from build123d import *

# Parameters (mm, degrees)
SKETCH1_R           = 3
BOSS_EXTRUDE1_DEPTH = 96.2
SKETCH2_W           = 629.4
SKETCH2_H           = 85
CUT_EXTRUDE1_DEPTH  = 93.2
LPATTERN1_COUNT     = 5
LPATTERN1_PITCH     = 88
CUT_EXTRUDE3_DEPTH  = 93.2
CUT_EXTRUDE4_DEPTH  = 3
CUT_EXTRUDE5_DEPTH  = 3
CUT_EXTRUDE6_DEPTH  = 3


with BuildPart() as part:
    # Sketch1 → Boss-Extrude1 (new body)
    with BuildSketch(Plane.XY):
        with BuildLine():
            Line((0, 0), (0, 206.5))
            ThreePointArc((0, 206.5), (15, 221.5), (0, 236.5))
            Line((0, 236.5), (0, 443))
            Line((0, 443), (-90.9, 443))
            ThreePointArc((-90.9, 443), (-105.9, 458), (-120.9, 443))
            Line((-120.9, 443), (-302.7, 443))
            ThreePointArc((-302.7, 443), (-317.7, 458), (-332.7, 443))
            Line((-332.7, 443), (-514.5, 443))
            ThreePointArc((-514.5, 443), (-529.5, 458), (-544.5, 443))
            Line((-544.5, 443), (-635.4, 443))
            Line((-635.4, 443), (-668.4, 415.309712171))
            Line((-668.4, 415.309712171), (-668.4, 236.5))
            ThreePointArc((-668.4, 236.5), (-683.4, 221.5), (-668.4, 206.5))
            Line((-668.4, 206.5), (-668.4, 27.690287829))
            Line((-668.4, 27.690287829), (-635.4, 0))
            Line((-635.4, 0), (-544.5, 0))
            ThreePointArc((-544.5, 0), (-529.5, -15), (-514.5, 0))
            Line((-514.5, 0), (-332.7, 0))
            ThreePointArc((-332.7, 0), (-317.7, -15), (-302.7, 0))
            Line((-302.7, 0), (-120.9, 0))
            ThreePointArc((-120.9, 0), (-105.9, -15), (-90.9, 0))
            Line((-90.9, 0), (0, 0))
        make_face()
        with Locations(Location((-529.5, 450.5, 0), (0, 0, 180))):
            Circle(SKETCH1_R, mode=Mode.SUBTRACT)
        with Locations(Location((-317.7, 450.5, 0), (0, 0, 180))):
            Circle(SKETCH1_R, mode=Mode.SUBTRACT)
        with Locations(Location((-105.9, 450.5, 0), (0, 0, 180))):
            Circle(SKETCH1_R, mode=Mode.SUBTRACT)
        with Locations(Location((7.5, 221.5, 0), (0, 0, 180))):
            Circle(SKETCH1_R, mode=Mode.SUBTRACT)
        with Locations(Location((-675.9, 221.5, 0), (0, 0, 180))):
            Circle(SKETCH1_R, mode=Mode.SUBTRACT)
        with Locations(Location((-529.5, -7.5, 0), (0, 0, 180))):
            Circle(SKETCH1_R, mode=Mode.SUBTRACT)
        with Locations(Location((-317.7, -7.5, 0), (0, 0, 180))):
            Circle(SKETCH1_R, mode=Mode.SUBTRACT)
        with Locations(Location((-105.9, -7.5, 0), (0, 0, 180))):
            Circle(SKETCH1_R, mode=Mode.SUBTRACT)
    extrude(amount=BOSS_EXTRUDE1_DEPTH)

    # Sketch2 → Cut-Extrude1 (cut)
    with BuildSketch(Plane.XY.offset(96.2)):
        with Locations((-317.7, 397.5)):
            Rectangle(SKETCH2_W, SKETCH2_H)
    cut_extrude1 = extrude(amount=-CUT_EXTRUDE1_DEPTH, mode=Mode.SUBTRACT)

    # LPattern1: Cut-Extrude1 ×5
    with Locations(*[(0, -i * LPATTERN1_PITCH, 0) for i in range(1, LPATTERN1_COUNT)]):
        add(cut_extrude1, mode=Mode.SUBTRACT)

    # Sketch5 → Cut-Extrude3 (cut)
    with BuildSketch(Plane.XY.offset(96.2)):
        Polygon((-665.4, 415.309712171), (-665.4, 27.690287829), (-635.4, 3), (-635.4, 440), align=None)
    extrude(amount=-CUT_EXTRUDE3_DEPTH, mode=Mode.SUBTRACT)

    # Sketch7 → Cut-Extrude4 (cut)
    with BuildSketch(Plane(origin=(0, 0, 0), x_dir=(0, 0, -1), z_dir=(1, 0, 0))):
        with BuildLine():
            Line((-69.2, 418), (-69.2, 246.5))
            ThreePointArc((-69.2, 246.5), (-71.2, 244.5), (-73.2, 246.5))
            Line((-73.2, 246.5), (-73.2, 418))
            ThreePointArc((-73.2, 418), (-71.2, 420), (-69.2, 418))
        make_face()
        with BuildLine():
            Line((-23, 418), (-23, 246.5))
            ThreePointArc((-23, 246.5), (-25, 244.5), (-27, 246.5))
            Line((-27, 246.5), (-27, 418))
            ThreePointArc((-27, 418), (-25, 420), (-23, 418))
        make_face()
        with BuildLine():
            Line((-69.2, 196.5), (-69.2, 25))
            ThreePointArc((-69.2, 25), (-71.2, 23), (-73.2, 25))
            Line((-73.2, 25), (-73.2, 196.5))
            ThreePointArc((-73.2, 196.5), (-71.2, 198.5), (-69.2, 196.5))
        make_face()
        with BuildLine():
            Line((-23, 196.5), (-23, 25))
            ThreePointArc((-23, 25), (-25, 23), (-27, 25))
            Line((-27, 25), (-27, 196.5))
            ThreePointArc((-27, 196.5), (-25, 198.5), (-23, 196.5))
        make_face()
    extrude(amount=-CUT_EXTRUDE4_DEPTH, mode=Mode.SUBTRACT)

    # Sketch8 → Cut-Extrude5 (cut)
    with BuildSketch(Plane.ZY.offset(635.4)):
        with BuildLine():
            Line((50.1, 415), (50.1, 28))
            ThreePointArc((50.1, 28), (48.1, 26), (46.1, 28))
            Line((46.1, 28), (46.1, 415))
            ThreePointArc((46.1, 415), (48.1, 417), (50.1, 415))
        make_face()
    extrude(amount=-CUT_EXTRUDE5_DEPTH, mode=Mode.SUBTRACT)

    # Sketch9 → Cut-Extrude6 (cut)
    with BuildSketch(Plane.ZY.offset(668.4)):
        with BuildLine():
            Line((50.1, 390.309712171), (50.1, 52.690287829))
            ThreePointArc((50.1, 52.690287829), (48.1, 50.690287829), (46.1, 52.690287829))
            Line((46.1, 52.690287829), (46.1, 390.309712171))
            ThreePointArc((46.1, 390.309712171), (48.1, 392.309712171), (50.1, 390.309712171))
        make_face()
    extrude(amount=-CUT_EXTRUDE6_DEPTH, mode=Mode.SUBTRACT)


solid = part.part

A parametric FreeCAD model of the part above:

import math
import FreeCAD as App
import Part
import Sketcher

V = App.Vector
Q = App.Units.Quantity


def add_polygon(sketch, points):
    """Adds a closed chain of lines whose ends are joined by coincident constraints."""
    first, n = sketch.GeometryCount, len(points)
    for a, b in zip(points, points[1:] + points[:1]):
        sketch.addGeometry(Part.LineSegment(App.Vector(*a, 0), App.Vector(*b, 0)), False)
    for i in range(n):
        sketch.addConstraint(Sketcher.Constraint("Coincident", first + i, 2, first + (i + 1) % n, 1))

doc = App.newDocument("Part")
body = doc.addObject("PartDesign::Body", "Body")

# Sketch on XY plane
sketch1 = body.newObject("Sketcher::SketchObject", "Sketch")
sketch1.AttachmentSupport = (doc.getObject("XY_Plane"), [""])
sketch1.MapMode = "FlatFace"
sketch1.addGeometry([
    Part.LineSegment(V(0, 0, 0), V(0, 206.5, 0)),  # 0
    Part.ArcOfCircle(Part.Circle(V(0, 221.5, 0), V(0, 0, 1), 15), math.radians(-90), math.radians(90)),  # 1
    Part.LineSegment(V(0, 236.5, 0), V(0, 443, 0)),  # 2
    Part.LineSegment(V(0, 443, 0), V(-90.9, 443, 0)),  # 3
    Part.ArcOfCircle(Part.Circle(V(-105.9, 443, 0), V(0, 0, 1), 15), math.radians(0), math.radians(180)),  # 4
    Part.LineSegment(V(-120.9, 443, 0), V(-302.7, 443, 0)),  # 5
    Part.ArcOfCircle(Part.Circle(V(-317.7, 443, 0), V(0, 0, 1), 15), math.radians(0), math.radians(180)),  # 6
    Part.LineSegment(V(-332.7, 443, 0), V(-514.5, 443, 0)),  # 7
    Part.ArcOfCircle(Part.Circle(V(-529.5, 443, 0), V(0, 0, 1), 15), math.radians(0), math.radians(180)),  # 8
    Part.LineSegment(V(-544.5, 443, 0), V(-635.4, 443, 0)),  # 9
    Part.LineSegment(V(-635.4, 443, 0), V(-668.4, 415.309712, 0)),  # 10
    Part.LineSegment(V(-668.4, 415.309712, 0), V(-668.4, 236.5, 0)),  # 11
    Part.ArcOfCircle(Part.Circle(V(-668.4, 221.5, 0), V(0, 0, 1), 15), math.radians(90), math.radians(270)),  # 12
    Part.LineSegment(V(-668.4, 206.5, 0), V(-668.4, 27.690288, 0)),  # 13
    Part.LineSegment(V(-668.4, 27.690288, 0), V(-635.4, 0, 0)),  # 14
    Part.LineSegment(V(-635.4, 0, 0), V(-544.5, 0, 0)),  # 15
    Part.ArcOfCircle(Part.Circle(V(-529.5, 0, 0), V(0, 0, 1), 15), math.radians(180), math.radians(360)),  # 16
    Part.LineSegment(V(-514.5, 0, 0), V(-332.7, 0, 0)),  # 17
    Part.ArcOfCircle(Part.Circle(V(-317.7, 0, 0), V(0, 0, 1), 15), math.radians(180), math.radians(360)),  # 18
    Part.LineSegment(V(-302.7, 0, 0), V(-120.9, 0, 0)),  # 19
    Part.ArcOfCircle(Part.Circle(V(-105.9, 0, 0), V(0, 0, 1), 15), math.radians(180), math.radians(360)),  # 20
    Part.LineSegment(V(-90.9, 0, 0), V(0, 0, 0)),  # 21
    Part.Circle(V(-529.5, -7.5, 0), V(0, 0, 1), 3),  # 22
    Part.Circle(V(-317.7, -7.5, 0), V(0, 0, 1), 3),  # 23
    Part.Circle(V(-105.9, -7.5, 0), V(0, 0, 1), 3),  # 24
    Part.Circle(V(-675.9, 221.5, 0), V(0, 0, 1), 3),  # 25
    Part.Circle(V(-529.5, 450.5, 0), V(0, 0, 1), 3),  # 26
    Part.Circle(V(7.5, 221.5, 0), V(0, 0, 1), 3),  # 27
    Part.Circle(V(-317.7, 450.5, 0), V(0, 0, 1), 3),  # 28
    Part.Circle(V(-105.9, 450.5, 0), V(0, 0, 1), 3),  # 29
], False)
sketch1.addConstraint([
    Sketcher.Constraint("Coincident", 0, 2, 1, 1),
    Sketcher.Constraint("Coincident", 1, 2, 2, 1),
    Sketcher.Constraint("Coincident", 2, 2, 3, 1),
    Sketcher.Constraint("Coincident", 3, 2, 4, 1),
    Sketcher.Constraint("Coincident", 4, 2, 5, 1),
    Sketcher.Constraint("Coincident", 5, 2, 6, 1),
    Sketcher.Constraint("Coincident", 6, 2, 7, 1),
    Sketcher.Constraint("Coincident", 7, 2, 8, 1),
    Sketcher.Constraint("Coincident", 8, 2, 9, 1),
    Sketcher.Constraint("Coincident", 9, 2, 10, 1),
    Sketcher.Constraint("Coincident", 10, 2, 11, 1),
    Sketcher.Constraint("Coincident", 11, 2, 12, 1),
    Sketcher.Constraint("Coincident", 12, 2, 13, 1),
    Sketcher.Constraint("Coincident", 13, 2, 14, 1),
    Sketcher.Constraint("Coincident", 14, 2, 15, 1),
    Sketcher.Constraint("Coincident", 15, 2, 16, 1),
    Sketcher.Constraint("Coincident", 16, 2, 17, 1),
    Sketcher.Constraint("Coincident", 17, 2, 18, 1),
    Sketcher.Constraint("Coincident", 18, 2, 19, 1),
    Sketcher.Constraint("Coincident", 19, 2, 20, 1),
    Sketcher.Constraint("Coincident", 20, 2, 21, 1),
    Sketcher.Constraint("Coincident", 21, 2, 0, 1),
    Sketcher.Constraint("Vertical", 0),
    Sketcher.Constraint("Vertical", 2),
    Sketcher.Constraint("Horizontal", 3),
    Sketcher.Constraint("Horizontal", 5),
    Sketcher.Constraint("Horizontal", 7),
    Sketcher.Constraint("Horizontal", 9),
    Sketcher.Constraint("Vertical", 11),
    Sketcher.Constraint("Vertical", 13),
    Sketcher.Constraint("Horizontal", 15),
    Sketcher.Constraint("Horizontal", 17),
    Sketcher.Constraint("Horizontal", 19),
    Sketcher.Constraint("Horizontal", 21),
    Sketcher.Constraint("Coincident", 21, 2, -1, 1),
    Sketcher.Constraint("Equal", 1, 4),
    Sketcher.Constraint("Equal", 4, 6),
    Sketcher.Constraint("Equal", 6, 8),
    Sketcher.Constraint("Equal", 8, 12),
    Sketcher.Constraint("Equal", 12, 16),
    Sketcher.Constraint("Equal", 16, 18),
    Sketcher.Constraint("Equal", 18, 20),
    Sketcher.Constraint("Equal", 22, 23),
    Sketcher.Constraint("Equal", 23, 24),
    Sketcher.Constraint("Equal", 24, 25),
    Sketcher.Constraint("Equal", 25, 26),
    Sketcher.Constraint("Equal", 26, 27),
    Sketcher.Constraint("Equal", 27, 28),
    Sketcher.Constraint("Equal", 28, 29),
    Sketcher.Constraint("PointOnObject", 1, 3, -2),
    Sketcher.Constraint("PointOnObject", 16, 3, -1),
    Sketcher.Constraint("PointOnObject", 18, 3, -1),
    Sketcher.Constraint("PointOnObject", 20, 3, -1),
    Sketcher.Constraint("PointOnObject", 1, 2, -2),
    Sketcher.Constraint("PointOnObject", 14, 2, -1),
    Sketcher.Constraint("PointOnObject", 16, 2, -1),
    Sketcher.Constraint("PointOnObject", 18, 2, -1),
    Sketcher.Constraint("Horizontal", 4, 3, 6, 3),
    Sketcher.Constraint("Horizontal", 6, 3, 8, 3),
    Sketcher.Constraint("Horizontal", 1, 3, 12, 3),
    Sketcher.Constraint("Horizontal", 22, 3, 23, 3),
    Sketcher.Constraint("Horizontal", 23, 3, 24, 3),
    Sketcher.Constraint("Horizontal", 12, 3, 25, 3),
    Sketcher.Constraint("Horizontal", 25, 3, 27, 3),
    Sketcher.Constraint("Horizontal", 26, 3, 28, 3),
    Sketcher.Constraint("Horizontal", 28, 3, 29, 3),
    Sketcher.Constraint("Horizontal", 8, 3, 2, 2),
    Sketcher.Constraint("Horizontal", 3, 2, 4, 2),
    Sketcher.Constraint("Horizontal", 5, 2, 6, 2),
    Sketcher.Constraint("Horizontal", 7, 2, 8, 2),
    Sketcher.Constraint("Vertical", 8, 3, 16, 3),
    Sketcher.Constraint("Vertical", 6, 3, 18, 3),
    Sketcher.Constraint("Vertical", 4, 3, 20, 3),
    Sketcher.Constraint("Vertical", 16, 3, 22, 3),
    Sketcher.Constraint("Vertical", 18, 3, 23, 3),
    Sketcher.Constraint("Vertical", 20, 3, 24, 3),
    Sketcher.Constraint("Vertical", 22, 3, 26, 3),
    Sketcher.Constraint("Vertical", 23, 3, 28, 3),
    Sketcher.Constraint("Vertical", 24, 3, 29, 3),
    Sketcher.Constraint("Vertical", 12, 3, 10, 2),
    Sketcher.Constraint("Vertical", 11, 2, 12, 2),
    Sketcher.Constraint("Vertical", 9, 2, 14, 2),
    Sketcher.Constraint("Equal", 5, 7),
    Sketcher.Constraint("Equal", 3, 9),
    Sketcher.Constraint("Equal", 0, 2),
    Sketcher.Constraint("Equal", 11, 13),
    Sketcher.Constraint("Diameter", 22, 6.0),
    Sketcher.Constraint("Radius", 1, 15.0),
    Sketcher.Constraint("Angle", 10, Q("-140 deg")),
    Sketcher.Constraint("DistanceX", 3, 2, 3, 1, 90.9),
    Sketcher.Constraint("DistanceX", 5, 2, 5, 1, 181.8),
    Sketcher.Constraint("DistanceY", 0, 1, 0, 2, 206.5),
    Sketcher.Constraint("DistanceY", 22, 3, 12, 3, 229.0),
    Sketcher.Constraint("DistanceY", 12, 3, 26, 3, 229.0),
    Sketcher.Constraint("DistanceX", 12, 3, 9, 2, 33.0),
    Sketcher.Constraint("DistanceX", 25, 3, -1, 1, 675.9),
    Sketcher.Constraint("DistanceX", -1, 1, 27, 3, 7.5),
])
pad1 = body.newObject("PartDesign::Pad", "Pad")
pad1.Profile = sketch1
pad1.Length = 96.2

# Sketch on XY plane
sketch2 = body.newObject("Sketcher::SketchObject", "Sketch001")
sketch2.AttachmentSupport = (doc.getObject("XY_Plane"), [""])
sketch2.MapMode = "FlatFace"
sketch2.AttachmentOffset = App.Placement(V(0, 0, 96.2), App.Rotation())
add_polygon(sketch2, [(-632.4, 440), (-632.4, 355), (-3, 355), (-3, 440)])  # lines 0-3
sketch2.addConstraint([
    Sketcher.Constraint("Vertical", 0),
    Sketcher.Constraint("Horizontal", 1),
    Sketcher.Constraint("Vertical", 2),
    Sketcher.Constraint("Horizontal", 3),
    Sketcher.Constraint("DistanceY", 0, 2, 0, 1, 85.0),
    Sketcher.Constraint("DistanceX", 1, 1, 1, 2, 629.4),
    Sketcher.Constraint("DistanceY", -1, 1, 0, 2, 355.0),
    Sketcher.Constraint("DistanceX", 1, 2, -1, 1, 3.0),
])
pocket1 = body.newObject("PartDesign::Pocket", "Pocket")
pocket1.Profile = sketch2
pocket1.Length = 93.2
doc.recompute()

linearpattern = body.newObject("PartDesign::LinearPattern", "LinearPattern")
linearpattern.Originals = [pocket1]
linearpattern.Direction = (doc.getObject("Y_Axis"), [""])
linearpattern.Mode = "offset"
linearpattern.Offset = 88
linearpattern.Occurrences = 5
linearpattern.Reversed = True
body.Tip = linearpattern

# Sketch on XY plane
sketch3 = body.newObject("Sketcher::SketchObject", "Sketch002")
sketch3.AttachmentSupport = (doc.getObject("XY_Plane"), [""])
sketch3.MapMode = "FlatFace"
sketch3.AttachmentOffset = App.Placement(V(0, 0, 96.2), App.Rotation())
add_polygon(sketch3, [(-665.4, 415.309712), (-665.4, 27.690288), (-635.4, 3), (-635.4, 440)])  # lines 0-3
sketch3.addConstraint([
    Sketcher.Constraint("Vertical", 0),
    Sketcher.Constraint("Vertical", 2),
    Sketcher.Constraint("Equal", 1, 3),
    Sketcher.Constraint("DistanceY", 2, 1, 2, 2, 437.0),
    Sketcher.Constraint("DistanceY", -1, 1, 1, 2, 3.0),
    Sketcher.Constraint("DistanceX", 0, 2, 1, 2, 30.0),
    Sketcher.Constraint("DistanceX", 0, 2, -1, 1, 665.4),
    Sketcher.Constraint("DistanceY", 0, 2, 0, 1, 387.619424),
])
pocket2 = body.newObject("PartDesign::Pocket", "Pocket001")
pocket2.Profile = sketch3
pocket2.Length = 93.2

# Sketch on YZ plane
sketch4 = body.newObject("Sketcher::SketchObject", "Sketch003")
sketch4.AttachmentSupport = (doc.getObject("YZ_Plane"), [""])
sketch4.MapMode = "FlatFace"
sketch4.addGeometry([
    Part.LineSegment(V(246.5, 69.2, 0), V(418, 69.2, 0)),  # 0
    Part.ArcOfCircle(Part.Circle(V(418, 71.2, 0), V(0, 0, 1), 2), math.radians(-90), math.radians(90)),  # 1
    Part.LineSegment(V(418, 73.2, 0), V(246.5, 73.2, 0)),  # 2
    Part.ArcOfCircle(Part.Circle(V(246.5, 71.2, 0), V(0, 0, 1), 2), math.radians(90), math.radians(270)),  # 3
    Part.LineSegment(V(246.5, 23, 0), V(418, 23, 0)),  # 4
    Part.ArcOfCircle(Part.Circle(V(418, 25, 0), V(0, 0, 1), 2), math.radians(-90), math.radians(90)),  # 5
    Part.LineSegment(V(418, 27, 0), V(246.5, 27, 0)),  # 6
    Part.ArcOfCircle(Part.Circle(V(246.5, 25, 0), V(0, 0, 1), 2), math.radians(90), math.radians(270)),  # 7
    Part.LineSegment(V(25, 69.2, 0), V(196.5, 69.2, 0)),  # 8
    Part.ArcOfCircle(Part.Circle(V(196.5, 71.2, 0), V(0, 0, 1), 2), math.radians(-90), math.radians(90)),  # 9
    Part.LineSegment(V(196.5, 73.2, 0), V(25, 73.2, 0)),  # 10
    Part.ArcOfCircle(Part.Circle(V(25, 71.2, 0), V(0, 0, 1), 2), math.radians(90), math.radians(270)),  # 11
    Part.LineSegment(V(25, 23, 0), V(196.5, 23, 0)),  # 12
    Part.ArcOfCircle(Part.Circle(V(196.5, 25, 0), V(0, 0, 1), 2), math.radians(-90), math.radians(90)),  # 13
    Part.LineSegment(V(196.5, 27, 0), V(25, 27, 0)),  # 14
    Part.ArcOfCircle(Part.Circle(V(25, 25, 0), V(0, 0, 1), 2), math.radians(90), math.radians(270)),  # 15
], False)
sketch4.addConstraint([
    Sketcher.Constraint("Tangent", 0, 2, 1, 1),
    Sketcher.Constraint("Tangent", 1, 2, 2, 1),
    Sketcher.Constraint("Tangent", 2, 2, 3, 1),
    Sketcher.Constraint("Tangent", 3, 2, 0, 1),
    Sketcher.Constraint("Tangent", 4, 2, 5, 1),
    Sketcher.Constraint("Tangent", 5, 2, 6, 1),
    Sketcher.Constraint("Tangent", 6, 2, 7, 1),
    Sketcher.Constraint("Tangent", 7, 2, 4, 1),
    Sketcher.Constraint("Tangent", 8, 2, 9, 1),
    Sketcher.Constraint("Tangent", 9, 2, 10, 1),
    Sketcher.Constraint("Tangent", 10, 2, 11, 1),
    Sketcher.Constraint("Tangent", 11, 2, 8, 1),
    Sketcher.Constraint("Tangent", 12, 2, 13, 1),
    Sketcher.Constraint("Tangent", 13, 2, 14, 1),
    Sketcher.Constraint("Tangent", 14, 2, 15, 1),
    Sketcher.Constraint("Tangent", 15, 2, 12, 1),
    Sketcher.Constraint("Horizontal", 0),
    Sketcher.Constraint("Horizontal", 2),
    Sketcher.Constraint("Horizontal", 4),
    Sketcher.Constraint("Horizontal", 6),
    Sketcher.Constraint("Horizontal", 8),
    Sketcher.Constraint("Horizontal", 10),
    Sketcher.Constraint("Horizontal", 12),
    Sketcher.Constraint("Horizontal", 14),
    Sketcher.Constraint("Equal", 3, 5),
    Sketcher.Constraint("Equal", 7, 9),
    Sketcher.Constraint("Equal", 11, 13),
    Sketcher.Constraint("Horizontal", 3, 3, 9, 3),
    Sketcher.Constraint("Horizontal", 7, 3, 13, 3),
    Sketcher.Constraint("Vertical", 1, 3, 5, 3),
    Sketcher.Constraint("Vertical", 3, 3, 7, 3),
    Sketcher.Constraint("Vertical", 9, 3, 13, 3),
    Sketcher.Constraint("Vertical", 11, 3, 15, 3),
    Sketcher.Constraint("Equal", 6, 8),
    Sketcher.Constraint("Radius", 1, 2.0),
    Sketcher.Constraint("DistanceX", 0, 1, 0, 2, 171.5),
    Sketcher.Constraint("DistanceX", -1, 1, 1, 3, 418.0),
    Sketcher.Constraint("DistanceY", -1, 1, 5, 3, 25.0),
    Sketcher.Constraint("DistanceX", -1, 1, 11, 3, 25.0),
    Sketcher.Constraint("DistanceY", -1, 1, 1, 3, 71.2),
])
pocket3 = body.newObject("PartDesign::Pocket", "Pocket002")
pocket3.Profile = sketch4
pocket3.Length = 3

# Sketch on YZ plane
sketch5 = body.newObject("Sketcher::SketchObject", "Sketch004")
sketch5.AttachmentSupport = (doc.getObject("YZ_Plane"), [""])
sketch5.MapMode = "FlatFace"
sketch5.AttachmentOffset = App.Placement(V(0, 0, -635.4), App.Rotation())
sketch5.addGeometry([
    Part.LineSegment(V(28, 50.1, 0), V(415, 50.1, 0)),
    Part.ArcOfCircle(Part.Circle(V(415, 48.1, 0), V(0, 0, 1), 2), math.radians(-90), math.radians(90)),
    Part.LineSegment(V(415, 46.1, 0), V(28, 46.1, 0)),
    Part.ArcOfCircle(Part.Circle(V(28, 48.1, 0), V(0, 0, 1), 2), math.radians(90), math.radians(270)),
], False)
sketch5.addConstraint([
    Sketcher.Constraint("Tangent", 0, 2, 1, 2),
    Sketcher.Constraint("Tangent", 1, 1, 2, 1),
    Sketcher.Constraint("Tangent", 2, 2, 3, 2),
    Sketcher.Constraint("Tangent", 3, 1, 0, 1),
    Sketcher.Constraint("Horizontal", 0),
    Sketcher.Constraint("Horizontal", 2),
    Sketcher.Constraint("Radius", 1, 2.0),
    Sketcher.Constraint("DistanceX", 0, 1, 0, 2, 387.0),
    Sketcher.Constraint("DistanceX", -1, 1, 1, 3, 415.0),
    Sketcher.Constraint("DistanceY", -1, 1, 1, 3, 48.1),
])
pocket4 = body.newObject("PartDesign::Pocket", "Pocket003")
pocket4.Profile = sketch5
pocket4.Length = 3
pocket4.Reversed = True

# Sketch on YZ plane
sketch6 = body.newObject("Sketcher::SketchObject", "Sketch005")
sketch6.AttachmentSupport = (doc.getObject("YZ_Plane"), [""])
sketch6.MapMode = "FlatFace"
sketch6.AttachmentOffset = App.Placement(V(0, 0, -668.4), App.Rotation())
sketch6.addGeometry([
    Part.LineSegment(V(52.690288, 50.1, 0), V(390.309712, 50.1, 0)),
    Part.ArcOfCircle(Part.Circle(V(390.309712, 48.1, 0), V(0, 0, 1), 2), math.radians(-90), math.radians(90)),
    Part.LineSegment(V(390.309712, 46.1, 0), V(52.690288, 46.1, 0)),
    Part.ArcOfCircle(Part.Circle(V(52.690288, 48.1, 0), V(0, 0, 1), 2), math.radians(90), math.radians(270)),
], False)
sketch6.addConstraint([
    Sketcher.Constraint("Tangent", 0, 2, 1, 2),
    Sketcher.Constraint("Tangent", 1, 1, 2, 1),
    Sketcher.Constraint("Tangent", 2, 2, 3, 2),
    Sketcher.Constraint("Tangent", 3, 1, 0, 1),
    Sketcher.Constraint("Horizontal", 0),
    Sketcher.Constraint("Horizontal", 2),
    Sketcher.Constraint("Radius", 1, 2.0),
    Sketcher.Constraint("DistanceY", -1, 1, 1, 3, 48.1),
    Sketcher.Constraint("DistanceX", 0, 1, 0, 2, 337.619424),
    Sketcher.Constraint("DistanceX", -1, 1, 1, 3, 390.309712),
])
pocket5 = body.newObject("PartDesign::Pocket", "Pocket004")
pocket5.Profile = sketch6
pocket5.Length = 3
pocket5.Reversed = True

doc.recompute()
